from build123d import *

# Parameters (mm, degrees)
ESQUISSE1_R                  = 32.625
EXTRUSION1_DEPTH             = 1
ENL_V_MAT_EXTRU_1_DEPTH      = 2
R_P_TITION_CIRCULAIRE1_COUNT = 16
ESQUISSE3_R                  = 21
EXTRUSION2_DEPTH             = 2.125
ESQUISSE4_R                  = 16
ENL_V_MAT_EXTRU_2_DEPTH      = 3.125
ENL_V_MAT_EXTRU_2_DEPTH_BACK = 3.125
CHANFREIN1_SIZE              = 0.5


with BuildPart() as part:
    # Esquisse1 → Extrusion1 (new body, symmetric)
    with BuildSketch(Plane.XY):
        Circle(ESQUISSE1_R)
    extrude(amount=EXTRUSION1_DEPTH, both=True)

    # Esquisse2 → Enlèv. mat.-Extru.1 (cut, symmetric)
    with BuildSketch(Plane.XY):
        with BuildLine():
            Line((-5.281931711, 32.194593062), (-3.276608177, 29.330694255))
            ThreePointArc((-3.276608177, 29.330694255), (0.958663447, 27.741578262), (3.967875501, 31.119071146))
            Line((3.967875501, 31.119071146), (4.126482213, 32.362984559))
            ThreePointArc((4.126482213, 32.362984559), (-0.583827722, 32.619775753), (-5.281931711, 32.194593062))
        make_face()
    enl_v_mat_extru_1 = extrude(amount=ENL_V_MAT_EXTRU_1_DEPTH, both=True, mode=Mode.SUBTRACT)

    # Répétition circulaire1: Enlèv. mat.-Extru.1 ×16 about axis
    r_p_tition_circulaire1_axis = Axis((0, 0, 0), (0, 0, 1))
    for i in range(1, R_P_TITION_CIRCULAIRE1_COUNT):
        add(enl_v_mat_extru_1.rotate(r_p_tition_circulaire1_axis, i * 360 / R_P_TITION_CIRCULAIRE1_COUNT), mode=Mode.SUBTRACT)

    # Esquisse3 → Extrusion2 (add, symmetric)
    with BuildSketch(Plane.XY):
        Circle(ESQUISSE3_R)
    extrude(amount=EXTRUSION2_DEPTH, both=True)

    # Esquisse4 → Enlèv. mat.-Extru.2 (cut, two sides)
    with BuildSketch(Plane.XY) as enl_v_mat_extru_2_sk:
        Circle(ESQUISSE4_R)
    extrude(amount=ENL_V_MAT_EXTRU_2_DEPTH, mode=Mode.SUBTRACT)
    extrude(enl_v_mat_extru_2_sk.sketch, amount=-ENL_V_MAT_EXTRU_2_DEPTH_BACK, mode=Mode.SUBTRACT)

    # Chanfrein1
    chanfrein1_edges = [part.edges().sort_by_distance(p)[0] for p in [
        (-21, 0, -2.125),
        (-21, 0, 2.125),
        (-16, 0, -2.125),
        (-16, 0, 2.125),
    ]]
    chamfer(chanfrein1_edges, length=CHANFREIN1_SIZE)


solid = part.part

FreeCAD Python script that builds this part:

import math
import FreeCAD as App
import Part
import Sketcher
from FreeCAD import Vector
Q = App.Units.Quantity


def edges_at(feature, points):
    """Names of the edges that pass closest to the given points."""
    edges = feature.Shape.Edges
    near = lambda p: min(range(len(edges)), key=lambda i: edges[i].distToShape(Part.Vertex(*p))[0])
    return sorted({f"Edge{near(p) + 1}" for p in points})

doc = App.newDocument("Part")
params = doc.addObject("Spreadsheet::Sheet", "Params")
for row, (alias, value) in enumerate([
    ("sketch1_diameter", "65.25 mm"),
    ("pad1_length", "2 mm"),
    ("sketch2_radius", "4 mm"),
    ("pocket1_length", "4 mm"),
    ("sketch3_diameter", "42 mm"),
    ("pad2_length", "4.25 mm"),
    ("sketch4_diameter", "32 mm"),
    ("chamfer_size", "0.5 mm"),
], start=1):
    params.set(f"A{row}", alias)
    params.set(f"B{row}", "=" + value)
    params.setAlias(f"B{row}", alias)

body = doc.addObject("PartDesign::Body", "Body")

# Sketch on XY plane
sketch1 = body.newObject("Sketcher::SketchObject", "Sketch")
sketch1.AttachmentSupport = (doc.getObject("XY_Plane"), [""])
sketch1.MapMode = "FlatFace"
sketch1.addGeometry(Part.Circle(Vector(0, 0, 0), Vector(0, 0, 1), 32.625), False)
sketch1.addConstraint([
    Sketcher.Constraint("Coincident", 0, 3, -1, 1),
    Sketcher.Constraint("Diameter", 0, Q("65.25 mm")),
])
sketch1.setExpression("Constraints[1]", "Params.sketch1_diameter")
pad1 = body.newObject("PartDesign::Pad", "Pad")
pad1.Profile = sketch1
pad1.setExpression("Length", "Params.pad1_length")
pad1.Midplane = True

# Sketch on XY plane
sketch2 = body.newObject("Sketcher::SketchObject", "Sketch001")
sketch2.AttachmentSupport = (doc.getObject("XY_Plane"), [""])
sketch2.MapMode = "FlatFace"
sketch2.addGeometry([
    Part.LineSegment(Vector(-5.281932, 32.194593, 0), Vector(-3.276608, 29.330694, 0)),
    Part.ArcOfCircle(Part.Circle(Vector(0, 31.625, 0), Vector(0, 0, 1), 4), math.radians(-145), math.radians(-7.26636)),
    Part.LineSegment(Vector(3.967876, 31.119071, 0), Vector(4.126482, 32.362985, 0)),
    Part.ArcOfCircle(Part.Circle(Vector(0, 0, 0), Vector(0, 0, 1), 32.625), math.radians(82.73364), math.radians(99.317097)),
], False)
sketch2.addConstraint([
    Sketcher.Constraint("Tangent", 0, 2, 1, 1),
    Sketcher.Constraint("Tangent", 1, 2, 2, 1),
    Sketcher.Constraint("Coincident", 2, 2, 3, 1),
    Sketcher.Constraint("Coincident", 3, 2, 0, 1),
    Sketcher.Constraint("Coincident", 3, 3, -1, 1),
    Sketcher.Constraint("PointOnObject", 1, 3, -2),
    Sketcher.Constraint("Radius", 1, Q("4 mm")),
    Sketcher.Constraint("Angle", 0, Q("-55 deg")),
    Sketcher.Constraint("Radius", 3, Q("32.625 mm")),
    Sketcher.Constraint("DistanceY", -1, 1, 1, 3, Q("31.625 mm")),
    Sketcher.Constraint("DistanceY", -1, 1, 1, 2, Q("31.119071 mm")),
])
sketch2.setExpression("Constraints[6]", "Params.sketch2_radius")
pocket1 = body.newObject("PartDesign::Pocket", "Pocket")
pocket1.Profile = sketch2
pocket1.setExpression("Length", "Params.pocket1_length")
pocket1.Midplane = True
doc.recompute()

polarpattern = body.newObject("PartDesign::PolarPattern", "PolarPattern")
polarpattern.Originals = [pocket1]
polarpattern.Axis = (doc.getObject("Z_Axis"), [""])
polarpattern.Angle = 360
polarpattern.Occurrences = 16
body.Tip = polarpattern

# Sketch on XY plane
sketch3 = body.newObject("Sketcher::SketchObject", "Sketch002")
sketch3.AttachmentSupport = (doc.getObject("XY_Plane"), [""])
sketch3.MapMode = "FlatFace"
sketch3.addGeometry(Part.Circle(Vector(0, 0, 0), Vector(0, 0, 1), 21), False)
sketch3.addConstraint([
    Sketcher.Constraint("Coincident", 0, 3, -1, 1),
    Sketcher.Constraint("Diameter", 0, Q("42 mm")),
])
sketch3.setExpression("Constraints[1]", "Params.sketch3_diameter")
pad2 = body.newObject("PartDesign::Pad", "Pad001")
pad2.Profile = sketch3
pad2.setExpression("Length", "Params.pad2_length")
pad2.Midplane = True

# Sketch on XY plane
sketch4 = body.newObject("Sketcher::SketchObject", "Sketch003")
sketch4.AttachmentSupport = (doc.getObject("XY_Plane"), [""])
sketch4.MapMode = "FlatFace"
sketch4.addGeometry(Part.Circle(Vector(0, 0, 0), Vector(0, 0, 1), 16), False)
sketch4.addConstraint([
    Sketcher.Constraint("Coincident", 0, 3, -1, 1),
    Sketcher.Constraint("Diameter", 0, Q("32 mm")),
])
sketch4.setExpression("Constraints[1]", "Params.sketch4_diameter")
pocket2 = body.newObject("PartDesign::Pocket", "Pocket001")
pocket2.Profile = sketch4
pocket2.Type = "ThroughAll"
pocket2.Midplane = True
doc.recompute()

chamfer = body.newObject("PartDesign::Chamfer", "Chamfer")
chamfer.Base = (pocket2, edges_at(pocket2, [
    (-21, 0, -2.125),
    (-21, 0, 2.125),
    (-16, 0, -2.125),
    (-16, 0, 2.125),
]))
chamfer.setExpression("Size", "Params.chamfer_size")

doc.recompute()
